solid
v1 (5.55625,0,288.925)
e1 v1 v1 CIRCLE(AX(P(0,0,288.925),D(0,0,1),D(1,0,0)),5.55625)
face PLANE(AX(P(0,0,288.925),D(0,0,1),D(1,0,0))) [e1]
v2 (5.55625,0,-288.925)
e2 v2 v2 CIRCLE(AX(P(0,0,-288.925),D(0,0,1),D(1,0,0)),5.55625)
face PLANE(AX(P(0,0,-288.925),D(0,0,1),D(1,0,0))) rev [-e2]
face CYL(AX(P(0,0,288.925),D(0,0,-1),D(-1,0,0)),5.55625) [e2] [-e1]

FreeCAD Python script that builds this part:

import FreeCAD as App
import Part
import Sketcher
Q = App.Units.Quantity

doc = App.newDocument("Part")
body = doc.addObject("PartDesign::Body", "Body")

# Sketch on XY plane
sketch1 = body.newObject("Sketcher::SketchObject", "Sketch")
sketch1.AttachmentSupport = (doc.getObject("XY_Plane"), [""])
sketch1.MapMode = "FlatFace"
sketch1.addGeometry(Part.Circle(App.Vector(0, 0, 0), App.Vector(0, 0, 1), 6), False)
sketch1.addConstraint(Sketcher.Constraint("Coincident", 0, 3, -1, 1))
sketch1.addConstraint(Sketcher.Constraint("Diameter", 0, Q("0.4375 in")))
pad1 = body.newObject("PartDesign::Pad", "Pad")
pad1.Profile = sketch1
pad1.Length = Q("22.75 in")
pad1.Midplane = True

doc.recompute()
